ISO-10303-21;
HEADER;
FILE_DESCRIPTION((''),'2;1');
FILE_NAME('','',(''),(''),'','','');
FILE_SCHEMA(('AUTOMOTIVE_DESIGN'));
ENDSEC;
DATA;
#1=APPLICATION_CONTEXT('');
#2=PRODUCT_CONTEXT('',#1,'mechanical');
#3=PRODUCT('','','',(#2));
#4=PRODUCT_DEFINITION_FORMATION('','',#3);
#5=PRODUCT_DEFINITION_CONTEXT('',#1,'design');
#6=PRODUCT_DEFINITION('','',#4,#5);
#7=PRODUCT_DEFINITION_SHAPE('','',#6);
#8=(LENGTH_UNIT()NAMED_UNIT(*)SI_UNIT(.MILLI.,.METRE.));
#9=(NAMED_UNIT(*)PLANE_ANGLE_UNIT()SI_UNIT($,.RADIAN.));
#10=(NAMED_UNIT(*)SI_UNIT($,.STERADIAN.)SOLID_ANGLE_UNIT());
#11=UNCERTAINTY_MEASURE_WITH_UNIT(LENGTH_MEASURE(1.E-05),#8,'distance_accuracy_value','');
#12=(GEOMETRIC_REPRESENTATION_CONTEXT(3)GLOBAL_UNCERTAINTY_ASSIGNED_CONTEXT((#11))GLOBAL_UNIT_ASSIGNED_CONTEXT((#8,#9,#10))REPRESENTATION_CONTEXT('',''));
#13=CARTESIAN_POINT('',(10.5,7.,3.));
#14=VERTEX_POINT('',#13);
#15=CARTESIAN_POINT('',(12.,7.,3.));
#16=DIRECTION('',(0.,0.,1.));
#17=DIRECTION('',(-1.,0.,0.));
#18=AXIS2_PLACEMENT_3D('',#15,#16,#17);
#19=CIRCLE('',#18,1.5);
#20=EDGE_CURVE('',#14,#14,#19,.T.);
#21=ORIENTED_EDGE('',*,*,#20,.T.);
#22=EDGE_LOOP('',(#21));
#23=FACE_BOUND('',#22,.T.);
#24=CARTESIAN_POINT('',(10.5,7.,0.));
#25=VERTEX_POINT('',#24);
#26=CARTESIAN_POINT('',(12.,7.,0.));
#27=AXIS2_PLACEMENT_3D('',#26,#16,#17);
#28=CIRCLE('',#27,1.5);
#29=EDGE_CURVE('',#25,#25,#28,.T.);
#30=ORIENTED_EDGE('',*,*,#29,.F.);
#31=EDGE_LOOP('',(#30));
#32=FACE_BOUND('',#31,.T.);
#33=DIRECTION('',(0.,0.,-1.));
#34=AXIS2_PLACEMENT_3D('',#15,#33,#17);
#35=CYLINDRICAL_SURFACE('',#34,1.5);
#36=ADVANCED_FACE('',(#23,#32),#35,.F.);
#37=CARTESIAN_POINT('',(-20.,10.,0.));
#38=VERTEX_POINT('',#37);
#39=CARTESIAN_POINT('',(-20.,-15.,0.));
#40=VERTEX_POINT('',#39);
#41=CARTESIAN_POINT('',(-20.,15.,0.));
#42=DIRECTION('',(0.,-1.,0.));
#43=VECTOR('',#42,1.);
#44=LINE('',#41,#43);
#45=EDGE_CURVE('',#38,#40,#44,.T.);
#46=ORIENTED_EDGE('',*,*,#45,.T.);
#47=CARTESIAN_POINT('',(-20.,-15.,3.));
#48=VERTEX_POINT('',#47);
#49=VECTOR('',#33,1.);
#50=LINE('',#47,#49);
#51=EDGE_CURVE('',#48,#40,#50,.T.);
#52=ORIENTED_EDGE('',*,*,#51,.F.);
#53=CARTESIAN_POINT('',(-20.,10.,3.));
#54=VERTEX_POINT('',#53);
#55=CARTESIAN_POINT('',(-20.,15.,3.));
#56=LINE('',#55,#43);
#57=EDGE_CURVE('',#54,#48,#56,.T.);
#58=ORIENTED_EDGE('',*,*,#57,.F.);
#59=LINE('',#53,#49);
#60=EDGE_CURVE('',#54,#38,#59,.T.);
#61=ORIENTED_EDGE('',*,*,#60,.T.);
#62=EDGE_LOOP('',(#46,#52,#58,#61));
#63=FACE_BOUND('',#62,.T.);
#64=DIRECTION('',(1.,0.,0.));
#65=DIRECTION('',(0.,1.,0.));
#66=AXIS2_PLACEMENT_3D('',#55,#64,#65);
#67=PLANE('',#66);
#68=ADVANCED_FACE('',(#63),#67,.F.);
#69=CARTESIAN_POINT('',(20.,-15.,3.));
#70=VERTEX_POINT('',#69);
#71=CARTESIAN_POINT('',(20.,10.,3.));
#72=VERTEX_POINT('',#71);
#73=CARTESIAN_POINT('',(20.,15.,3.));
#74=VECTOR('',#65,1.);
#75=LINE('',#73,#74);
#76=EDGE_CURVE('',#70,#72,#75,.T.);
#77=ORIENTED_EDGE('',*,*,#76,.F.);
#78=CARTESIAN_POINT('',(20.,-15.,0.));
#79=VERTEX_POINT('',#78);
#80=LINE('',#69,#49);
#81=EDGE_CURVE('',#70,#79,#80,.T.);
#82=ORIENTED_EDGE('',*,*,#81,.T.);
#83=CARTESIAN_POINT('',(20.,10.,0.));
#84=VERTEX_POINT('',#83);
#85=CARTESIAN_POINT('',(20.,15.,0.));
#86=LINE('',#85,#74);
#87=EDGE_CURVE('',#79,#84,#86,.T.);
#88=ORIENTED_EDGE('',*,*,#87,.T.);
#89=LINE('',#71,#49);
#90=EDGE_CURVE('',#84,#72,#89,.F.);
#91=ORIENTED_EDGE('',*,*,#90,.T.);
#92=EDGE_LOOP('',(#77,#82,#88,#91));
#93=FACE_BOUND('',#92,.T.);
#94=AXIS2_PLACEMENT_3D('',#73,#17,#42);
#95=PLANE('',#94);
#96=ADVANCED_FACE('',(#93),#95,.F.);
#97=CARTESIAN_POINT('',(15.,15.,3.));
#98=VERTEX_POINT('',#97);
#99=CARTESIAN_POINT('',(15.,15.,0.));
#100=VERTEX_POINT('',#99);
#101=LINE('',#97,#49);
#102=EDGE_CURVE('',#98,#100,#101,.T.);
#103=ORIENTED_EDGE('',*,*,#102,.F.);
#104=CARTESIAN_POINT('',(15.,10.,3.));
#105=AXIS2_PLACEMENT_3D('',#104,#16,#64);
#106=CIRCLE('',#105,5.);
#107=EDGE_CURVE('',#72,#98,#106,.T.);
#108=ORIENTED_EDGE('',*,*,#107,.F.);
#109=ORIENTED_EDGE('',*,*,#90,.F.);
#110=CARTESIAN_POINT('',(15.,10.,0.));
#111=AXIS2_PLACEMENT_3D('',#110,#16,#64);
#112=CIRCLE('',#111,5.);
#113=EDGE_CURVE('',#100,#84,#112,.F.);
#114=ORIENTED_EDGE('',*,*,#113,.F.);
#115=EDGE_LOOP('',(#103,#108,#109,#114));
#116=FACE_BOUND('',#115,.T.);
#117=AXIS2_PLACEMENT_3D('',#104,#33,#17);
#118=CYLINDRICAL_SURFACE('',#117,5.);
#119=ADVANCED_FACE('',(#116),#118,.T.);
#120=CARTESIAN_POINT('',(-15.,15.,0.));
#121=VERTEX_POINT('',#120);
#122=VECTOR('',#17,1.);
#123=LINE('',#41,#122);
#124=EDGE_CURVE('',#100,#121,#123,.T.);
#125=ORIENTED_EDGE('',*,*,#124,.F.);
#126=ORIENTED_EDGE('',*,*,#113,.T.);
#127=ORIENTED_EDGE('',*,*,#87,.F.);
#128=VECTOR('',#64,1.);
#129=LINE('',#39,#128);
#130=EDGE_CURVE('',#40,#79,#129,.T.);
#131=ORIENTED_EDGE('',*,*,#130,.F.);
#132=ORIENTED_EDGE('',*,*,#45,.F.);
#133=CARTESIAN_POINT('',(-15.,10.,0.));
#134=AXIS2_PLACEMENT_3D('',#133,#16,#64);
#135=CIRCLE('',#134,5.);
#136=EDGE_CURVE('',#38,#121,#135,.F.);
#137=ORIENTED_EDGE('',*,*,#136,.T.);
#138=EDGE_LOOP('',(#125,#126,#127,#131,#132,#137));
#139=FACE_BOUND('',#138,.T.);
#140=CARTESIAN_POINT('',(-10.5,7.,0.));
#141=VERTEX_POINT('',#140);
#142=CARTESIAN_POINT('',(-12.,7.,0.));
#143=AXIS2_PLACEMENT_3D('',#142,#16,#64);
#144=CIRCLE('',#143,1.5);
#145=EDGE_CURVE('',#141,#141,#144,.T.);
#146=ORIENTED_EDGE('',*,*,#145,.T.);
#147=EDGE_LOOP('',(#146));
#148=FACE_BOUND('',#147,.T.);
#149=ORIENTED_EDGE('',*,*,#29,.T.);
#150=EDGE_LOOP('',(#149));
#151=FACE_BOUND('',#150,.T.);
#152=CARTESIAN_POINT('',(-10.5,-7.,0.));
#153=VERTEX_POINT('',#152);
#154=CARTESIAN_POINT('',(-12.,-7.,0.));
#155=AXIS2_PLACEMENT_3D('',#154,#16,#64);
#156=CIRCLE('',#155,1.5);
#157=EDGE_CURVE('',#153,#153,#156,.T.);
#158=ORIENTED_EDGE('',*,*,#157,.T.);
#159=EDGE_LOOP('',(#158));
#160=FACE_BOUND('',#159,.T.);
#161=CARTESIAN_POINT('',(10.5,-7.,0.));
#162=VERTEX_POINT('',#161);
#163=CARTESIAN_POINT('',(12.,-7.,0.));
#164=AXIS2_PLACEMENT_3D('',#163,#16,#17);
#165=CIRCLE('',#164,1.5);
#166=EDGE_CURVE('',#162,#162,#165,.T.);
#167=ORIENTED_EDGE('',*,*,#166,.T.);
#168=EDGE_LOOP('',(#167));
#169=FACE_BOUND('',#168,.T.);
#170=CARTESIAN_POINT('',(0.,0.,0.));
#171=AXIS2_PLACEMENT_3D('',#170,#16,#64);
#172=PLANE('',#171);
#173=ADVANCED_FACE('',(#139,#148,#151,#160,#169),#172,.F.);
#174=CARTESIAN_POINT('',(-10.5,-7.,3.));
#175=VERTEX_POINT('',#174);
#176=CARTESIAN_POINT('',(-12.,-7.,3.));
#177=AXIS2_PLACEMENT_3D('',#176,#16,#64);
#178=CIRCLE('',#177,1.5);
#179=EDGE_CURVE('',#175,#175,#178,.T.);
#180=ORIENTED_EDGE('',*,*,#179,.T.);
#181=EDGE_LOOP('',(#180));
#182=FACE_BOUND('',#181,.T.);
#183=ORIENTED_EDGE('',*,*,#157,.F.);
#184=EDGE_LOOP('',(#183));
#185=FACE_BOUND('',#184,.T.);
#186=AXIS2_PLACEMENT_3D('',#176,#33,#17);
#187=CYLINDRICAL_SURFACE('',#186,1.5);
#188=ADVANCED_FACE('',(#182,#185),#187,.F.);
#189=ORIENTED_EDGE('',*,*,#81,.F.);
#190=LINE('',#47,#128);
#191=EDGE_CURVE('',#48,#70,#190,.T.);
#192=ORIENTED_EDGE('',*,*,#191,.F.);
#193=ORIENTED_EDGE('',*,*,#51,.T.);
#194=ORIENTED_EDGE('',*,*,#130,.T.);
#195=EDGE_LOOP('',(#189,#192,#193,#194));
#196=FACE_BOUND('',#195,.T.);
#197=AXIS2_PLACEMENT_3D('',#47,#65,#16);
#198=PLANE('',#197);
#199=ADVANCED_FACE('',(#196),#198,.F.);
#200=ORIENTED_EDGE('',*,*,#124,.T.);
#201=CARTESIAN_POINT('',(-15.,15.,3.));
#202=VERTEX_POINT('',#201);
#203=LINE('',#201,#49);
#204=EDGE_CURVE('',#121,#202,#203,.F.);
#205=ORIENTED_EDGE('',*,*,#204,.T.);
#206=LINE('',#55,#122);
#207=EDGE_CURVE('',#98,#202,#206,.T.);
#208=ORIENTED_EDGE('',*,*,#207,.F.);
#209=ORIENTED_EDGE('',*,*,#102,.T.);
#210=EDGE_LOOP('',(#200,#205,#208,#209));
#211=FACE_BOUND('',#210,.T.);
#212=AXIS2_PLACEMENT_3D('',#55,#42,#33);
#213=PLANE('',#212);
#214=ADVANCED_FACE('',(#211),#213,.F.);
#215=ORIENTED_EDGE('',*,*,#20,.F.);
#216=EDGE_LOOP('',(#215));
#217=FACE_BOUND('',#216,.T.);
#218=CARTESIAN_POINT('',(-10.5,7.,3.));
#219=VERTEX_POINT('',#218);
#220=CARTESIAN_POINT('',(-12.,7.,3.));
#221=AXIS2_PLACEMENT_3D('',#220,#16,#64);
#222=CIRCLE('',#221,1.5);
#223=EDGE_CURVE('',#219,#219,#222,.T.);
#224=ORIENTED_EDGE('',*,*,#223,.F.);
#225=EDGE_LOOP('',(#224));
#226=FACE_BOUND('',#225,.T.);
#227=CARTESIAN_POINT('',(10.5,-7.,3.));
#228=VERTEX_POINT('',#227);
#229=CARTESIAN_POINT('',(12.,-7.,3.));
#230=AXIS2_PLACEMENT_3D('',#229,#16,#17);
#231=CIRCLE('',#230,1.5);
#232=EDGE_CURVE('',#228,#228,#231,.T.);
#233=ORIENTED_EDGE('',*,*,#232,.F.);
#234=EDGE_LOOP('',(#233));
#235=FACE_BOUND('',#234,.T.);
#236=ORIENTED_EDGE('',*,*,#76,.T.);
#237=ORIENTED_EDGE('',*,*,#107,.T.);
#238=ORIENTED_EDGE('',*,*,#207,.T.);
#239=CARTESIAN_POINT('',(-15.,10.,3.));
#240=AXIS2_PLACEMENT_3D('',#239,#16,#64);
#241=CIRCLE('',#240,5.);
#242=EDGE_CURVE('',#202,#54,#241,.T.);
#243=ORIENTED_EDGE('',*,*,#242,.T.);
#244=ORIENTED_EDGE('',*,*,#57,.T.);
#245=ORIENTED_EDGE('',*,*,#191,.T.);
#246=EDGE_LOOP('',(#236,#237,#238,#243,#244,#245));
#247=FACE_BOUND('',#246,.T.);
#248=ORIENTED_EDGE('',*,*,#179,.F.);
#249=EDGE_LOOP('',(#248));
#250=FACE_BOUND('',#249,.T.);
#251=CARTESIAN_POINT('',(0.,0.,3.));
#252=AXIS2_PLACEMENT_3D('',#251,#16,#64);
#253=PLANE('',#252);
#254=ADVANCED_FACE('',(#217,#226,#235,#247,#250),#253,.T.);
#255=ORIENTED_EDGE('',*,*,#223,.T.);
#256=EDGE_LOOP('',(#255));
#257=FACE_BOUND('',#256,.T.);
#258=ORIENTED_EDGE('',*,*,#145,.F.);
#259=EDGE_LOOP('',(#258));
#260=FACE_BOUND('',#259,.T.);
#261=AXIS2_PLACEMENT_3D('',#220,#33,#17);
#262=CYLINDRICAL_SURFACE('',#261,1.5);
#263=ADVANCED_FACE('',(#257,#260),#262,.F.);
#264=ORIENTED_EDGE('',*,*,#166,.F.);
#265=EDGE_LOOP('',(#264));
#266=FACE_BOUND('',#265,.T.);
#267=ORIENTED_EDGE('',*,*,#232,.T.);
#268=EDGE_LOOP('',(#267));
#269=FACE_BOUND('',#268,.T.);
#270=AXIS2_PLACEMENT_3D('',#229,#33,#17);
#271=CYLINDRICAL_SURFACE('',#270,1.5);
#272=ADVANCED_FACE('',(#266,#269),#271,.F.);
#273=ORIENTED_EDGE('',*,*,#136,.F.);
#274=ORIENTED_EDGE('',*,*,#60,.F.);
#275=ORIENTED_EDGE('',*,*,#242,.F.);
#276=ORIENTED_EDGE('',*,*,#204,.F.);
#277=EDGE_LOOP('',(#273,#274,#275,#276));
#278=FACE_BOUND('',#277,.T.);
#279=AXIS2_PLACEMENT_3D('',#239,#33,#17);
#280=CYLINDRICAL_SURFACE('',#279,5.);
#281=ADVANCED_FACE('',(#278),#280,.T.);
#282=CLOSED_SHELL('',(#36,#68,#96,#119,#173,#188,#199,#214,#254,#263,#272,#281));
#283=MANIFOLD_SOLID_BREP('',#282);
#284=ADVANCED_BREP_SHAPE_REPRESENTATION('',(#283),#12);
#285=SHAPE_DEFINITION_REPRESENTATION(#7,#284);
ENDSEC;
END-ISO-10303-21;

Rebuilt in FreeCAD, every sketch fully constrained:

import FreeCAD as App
import Part
import Sketcher


def edges_at(feature, points):
    """Names of the edges that pass closest to the given points."""
    edges = feature.Shape.Edges
    near = lambda p: min(range(len(edges)), key=lambda i: edges[i].distToShape(Part.Vertex(*p))[0])
    return sorted({f"Edge{near(p) + 1}" for p in points})


def add_polygon(sketch, points):
    """Adds a closed chain of lines whose ends are joined by coincident constraints."""
    first, n = sketch.GeometryCount, len(points)
    for a, b in zip(points, points[1:] + points[:1]):
        sketch.addGeometry(Part.LineSegment(App.Vector(*a, 0), App.Vector(*b, 0)), False)
    for i in range(n):
        sketch.addConstraint(Sketcher.Constraint("Coincident", first + i, 2, first + (i + 1) % n, 1))

doc = App.newDocument("Part")
body = doc.addObject("PartDesign::Body", "Body")

# Sketch on XY plane
sketch1 = body.newObject("Sketcher::SketchObject", "Sketch")
sketch1.AttachmentSupport = (doc.getObject("XY_Plane"), [""])
sketch1.MapMode = "FlatFace"
add_polygon(sketch1, [(-20, 15), (-20, -15), (20, -15), (20, 15)])  # lines 0-3
sketch1.addGeometry(Part.Circle(App.Vector(-12, -7, 0), App.Vector(0, 0, 1), 1.5), False)  # 4
sketch1.addGeometry(Part.Circle(App.Vector(12, -7, 0), App.Vector(0, 0, 1), 1.5), False)  # 5
sketch1.addGeometry(Part.Circle(App.Vector(-12, 7, 0), App.Vector(0, 0, 1), 1.5), False)  # 6
sketch1.addGeometry(Part.Circle(App.Vector(12, 7, 0), App.Vector(0, 0, 1), 1.5), False)  # 7
sketch1.addConstraint([
    Sketcher.Constraint("Vertical", 0),
    Sketcher.Constraint("Horizontal", 1),
    Sketcher.Constraint("Vertical", 2),
    Sketcher.Constraint("Horizontal", 3),
    Sketcher.Constraint("Equal", 4, 5),
    Sketcher.Constraint("Equal", 5, 6),
    Sketcher.Constraint("Equal", 6, 7),
    Sketcher.Constraint("Symmetric", 5, 3, 6, 3, -1, 1),
    Sketcher.Constraint("Symmetric", 4, 3, 7, 3, -1, 1),
    Sketcher.Constraint("Symmetric", 0, 2, 2, 2, -1, 1),
    Sketcher.Constraint("Symmetric", 4, 3, 5, 3, -2),
    Sketcher.Constraint("Diameter", 4, 3.0),
    Sketcher.Constraint("DistanceX", 1, 1, 1, 2, 40.0),
    Sketcher.Constraint("DistanceY", 0, 2, 0, 1, 30.0),
    Sketcher.Constraint("DistanceX", 4, 3, -1, 1, 12.0),
    Sketcher.Constraint("DistanceY", 4, 3, -1, 1, 7.0),
])
pad1 = body.newObject("PartDesign::Pad", "Pad")
pad1.Profile = sketch1
pad1.Length = 3
doc.recompute()

fillet = body.newObject("PartDesign::Fillet", "Fillet")
fillet.Base = (pad1, edges_at(pad1, [(-20, 15, 1.5), (20, 15, 1.5)]))
fillet.Radius = 5

doc.recompute()
